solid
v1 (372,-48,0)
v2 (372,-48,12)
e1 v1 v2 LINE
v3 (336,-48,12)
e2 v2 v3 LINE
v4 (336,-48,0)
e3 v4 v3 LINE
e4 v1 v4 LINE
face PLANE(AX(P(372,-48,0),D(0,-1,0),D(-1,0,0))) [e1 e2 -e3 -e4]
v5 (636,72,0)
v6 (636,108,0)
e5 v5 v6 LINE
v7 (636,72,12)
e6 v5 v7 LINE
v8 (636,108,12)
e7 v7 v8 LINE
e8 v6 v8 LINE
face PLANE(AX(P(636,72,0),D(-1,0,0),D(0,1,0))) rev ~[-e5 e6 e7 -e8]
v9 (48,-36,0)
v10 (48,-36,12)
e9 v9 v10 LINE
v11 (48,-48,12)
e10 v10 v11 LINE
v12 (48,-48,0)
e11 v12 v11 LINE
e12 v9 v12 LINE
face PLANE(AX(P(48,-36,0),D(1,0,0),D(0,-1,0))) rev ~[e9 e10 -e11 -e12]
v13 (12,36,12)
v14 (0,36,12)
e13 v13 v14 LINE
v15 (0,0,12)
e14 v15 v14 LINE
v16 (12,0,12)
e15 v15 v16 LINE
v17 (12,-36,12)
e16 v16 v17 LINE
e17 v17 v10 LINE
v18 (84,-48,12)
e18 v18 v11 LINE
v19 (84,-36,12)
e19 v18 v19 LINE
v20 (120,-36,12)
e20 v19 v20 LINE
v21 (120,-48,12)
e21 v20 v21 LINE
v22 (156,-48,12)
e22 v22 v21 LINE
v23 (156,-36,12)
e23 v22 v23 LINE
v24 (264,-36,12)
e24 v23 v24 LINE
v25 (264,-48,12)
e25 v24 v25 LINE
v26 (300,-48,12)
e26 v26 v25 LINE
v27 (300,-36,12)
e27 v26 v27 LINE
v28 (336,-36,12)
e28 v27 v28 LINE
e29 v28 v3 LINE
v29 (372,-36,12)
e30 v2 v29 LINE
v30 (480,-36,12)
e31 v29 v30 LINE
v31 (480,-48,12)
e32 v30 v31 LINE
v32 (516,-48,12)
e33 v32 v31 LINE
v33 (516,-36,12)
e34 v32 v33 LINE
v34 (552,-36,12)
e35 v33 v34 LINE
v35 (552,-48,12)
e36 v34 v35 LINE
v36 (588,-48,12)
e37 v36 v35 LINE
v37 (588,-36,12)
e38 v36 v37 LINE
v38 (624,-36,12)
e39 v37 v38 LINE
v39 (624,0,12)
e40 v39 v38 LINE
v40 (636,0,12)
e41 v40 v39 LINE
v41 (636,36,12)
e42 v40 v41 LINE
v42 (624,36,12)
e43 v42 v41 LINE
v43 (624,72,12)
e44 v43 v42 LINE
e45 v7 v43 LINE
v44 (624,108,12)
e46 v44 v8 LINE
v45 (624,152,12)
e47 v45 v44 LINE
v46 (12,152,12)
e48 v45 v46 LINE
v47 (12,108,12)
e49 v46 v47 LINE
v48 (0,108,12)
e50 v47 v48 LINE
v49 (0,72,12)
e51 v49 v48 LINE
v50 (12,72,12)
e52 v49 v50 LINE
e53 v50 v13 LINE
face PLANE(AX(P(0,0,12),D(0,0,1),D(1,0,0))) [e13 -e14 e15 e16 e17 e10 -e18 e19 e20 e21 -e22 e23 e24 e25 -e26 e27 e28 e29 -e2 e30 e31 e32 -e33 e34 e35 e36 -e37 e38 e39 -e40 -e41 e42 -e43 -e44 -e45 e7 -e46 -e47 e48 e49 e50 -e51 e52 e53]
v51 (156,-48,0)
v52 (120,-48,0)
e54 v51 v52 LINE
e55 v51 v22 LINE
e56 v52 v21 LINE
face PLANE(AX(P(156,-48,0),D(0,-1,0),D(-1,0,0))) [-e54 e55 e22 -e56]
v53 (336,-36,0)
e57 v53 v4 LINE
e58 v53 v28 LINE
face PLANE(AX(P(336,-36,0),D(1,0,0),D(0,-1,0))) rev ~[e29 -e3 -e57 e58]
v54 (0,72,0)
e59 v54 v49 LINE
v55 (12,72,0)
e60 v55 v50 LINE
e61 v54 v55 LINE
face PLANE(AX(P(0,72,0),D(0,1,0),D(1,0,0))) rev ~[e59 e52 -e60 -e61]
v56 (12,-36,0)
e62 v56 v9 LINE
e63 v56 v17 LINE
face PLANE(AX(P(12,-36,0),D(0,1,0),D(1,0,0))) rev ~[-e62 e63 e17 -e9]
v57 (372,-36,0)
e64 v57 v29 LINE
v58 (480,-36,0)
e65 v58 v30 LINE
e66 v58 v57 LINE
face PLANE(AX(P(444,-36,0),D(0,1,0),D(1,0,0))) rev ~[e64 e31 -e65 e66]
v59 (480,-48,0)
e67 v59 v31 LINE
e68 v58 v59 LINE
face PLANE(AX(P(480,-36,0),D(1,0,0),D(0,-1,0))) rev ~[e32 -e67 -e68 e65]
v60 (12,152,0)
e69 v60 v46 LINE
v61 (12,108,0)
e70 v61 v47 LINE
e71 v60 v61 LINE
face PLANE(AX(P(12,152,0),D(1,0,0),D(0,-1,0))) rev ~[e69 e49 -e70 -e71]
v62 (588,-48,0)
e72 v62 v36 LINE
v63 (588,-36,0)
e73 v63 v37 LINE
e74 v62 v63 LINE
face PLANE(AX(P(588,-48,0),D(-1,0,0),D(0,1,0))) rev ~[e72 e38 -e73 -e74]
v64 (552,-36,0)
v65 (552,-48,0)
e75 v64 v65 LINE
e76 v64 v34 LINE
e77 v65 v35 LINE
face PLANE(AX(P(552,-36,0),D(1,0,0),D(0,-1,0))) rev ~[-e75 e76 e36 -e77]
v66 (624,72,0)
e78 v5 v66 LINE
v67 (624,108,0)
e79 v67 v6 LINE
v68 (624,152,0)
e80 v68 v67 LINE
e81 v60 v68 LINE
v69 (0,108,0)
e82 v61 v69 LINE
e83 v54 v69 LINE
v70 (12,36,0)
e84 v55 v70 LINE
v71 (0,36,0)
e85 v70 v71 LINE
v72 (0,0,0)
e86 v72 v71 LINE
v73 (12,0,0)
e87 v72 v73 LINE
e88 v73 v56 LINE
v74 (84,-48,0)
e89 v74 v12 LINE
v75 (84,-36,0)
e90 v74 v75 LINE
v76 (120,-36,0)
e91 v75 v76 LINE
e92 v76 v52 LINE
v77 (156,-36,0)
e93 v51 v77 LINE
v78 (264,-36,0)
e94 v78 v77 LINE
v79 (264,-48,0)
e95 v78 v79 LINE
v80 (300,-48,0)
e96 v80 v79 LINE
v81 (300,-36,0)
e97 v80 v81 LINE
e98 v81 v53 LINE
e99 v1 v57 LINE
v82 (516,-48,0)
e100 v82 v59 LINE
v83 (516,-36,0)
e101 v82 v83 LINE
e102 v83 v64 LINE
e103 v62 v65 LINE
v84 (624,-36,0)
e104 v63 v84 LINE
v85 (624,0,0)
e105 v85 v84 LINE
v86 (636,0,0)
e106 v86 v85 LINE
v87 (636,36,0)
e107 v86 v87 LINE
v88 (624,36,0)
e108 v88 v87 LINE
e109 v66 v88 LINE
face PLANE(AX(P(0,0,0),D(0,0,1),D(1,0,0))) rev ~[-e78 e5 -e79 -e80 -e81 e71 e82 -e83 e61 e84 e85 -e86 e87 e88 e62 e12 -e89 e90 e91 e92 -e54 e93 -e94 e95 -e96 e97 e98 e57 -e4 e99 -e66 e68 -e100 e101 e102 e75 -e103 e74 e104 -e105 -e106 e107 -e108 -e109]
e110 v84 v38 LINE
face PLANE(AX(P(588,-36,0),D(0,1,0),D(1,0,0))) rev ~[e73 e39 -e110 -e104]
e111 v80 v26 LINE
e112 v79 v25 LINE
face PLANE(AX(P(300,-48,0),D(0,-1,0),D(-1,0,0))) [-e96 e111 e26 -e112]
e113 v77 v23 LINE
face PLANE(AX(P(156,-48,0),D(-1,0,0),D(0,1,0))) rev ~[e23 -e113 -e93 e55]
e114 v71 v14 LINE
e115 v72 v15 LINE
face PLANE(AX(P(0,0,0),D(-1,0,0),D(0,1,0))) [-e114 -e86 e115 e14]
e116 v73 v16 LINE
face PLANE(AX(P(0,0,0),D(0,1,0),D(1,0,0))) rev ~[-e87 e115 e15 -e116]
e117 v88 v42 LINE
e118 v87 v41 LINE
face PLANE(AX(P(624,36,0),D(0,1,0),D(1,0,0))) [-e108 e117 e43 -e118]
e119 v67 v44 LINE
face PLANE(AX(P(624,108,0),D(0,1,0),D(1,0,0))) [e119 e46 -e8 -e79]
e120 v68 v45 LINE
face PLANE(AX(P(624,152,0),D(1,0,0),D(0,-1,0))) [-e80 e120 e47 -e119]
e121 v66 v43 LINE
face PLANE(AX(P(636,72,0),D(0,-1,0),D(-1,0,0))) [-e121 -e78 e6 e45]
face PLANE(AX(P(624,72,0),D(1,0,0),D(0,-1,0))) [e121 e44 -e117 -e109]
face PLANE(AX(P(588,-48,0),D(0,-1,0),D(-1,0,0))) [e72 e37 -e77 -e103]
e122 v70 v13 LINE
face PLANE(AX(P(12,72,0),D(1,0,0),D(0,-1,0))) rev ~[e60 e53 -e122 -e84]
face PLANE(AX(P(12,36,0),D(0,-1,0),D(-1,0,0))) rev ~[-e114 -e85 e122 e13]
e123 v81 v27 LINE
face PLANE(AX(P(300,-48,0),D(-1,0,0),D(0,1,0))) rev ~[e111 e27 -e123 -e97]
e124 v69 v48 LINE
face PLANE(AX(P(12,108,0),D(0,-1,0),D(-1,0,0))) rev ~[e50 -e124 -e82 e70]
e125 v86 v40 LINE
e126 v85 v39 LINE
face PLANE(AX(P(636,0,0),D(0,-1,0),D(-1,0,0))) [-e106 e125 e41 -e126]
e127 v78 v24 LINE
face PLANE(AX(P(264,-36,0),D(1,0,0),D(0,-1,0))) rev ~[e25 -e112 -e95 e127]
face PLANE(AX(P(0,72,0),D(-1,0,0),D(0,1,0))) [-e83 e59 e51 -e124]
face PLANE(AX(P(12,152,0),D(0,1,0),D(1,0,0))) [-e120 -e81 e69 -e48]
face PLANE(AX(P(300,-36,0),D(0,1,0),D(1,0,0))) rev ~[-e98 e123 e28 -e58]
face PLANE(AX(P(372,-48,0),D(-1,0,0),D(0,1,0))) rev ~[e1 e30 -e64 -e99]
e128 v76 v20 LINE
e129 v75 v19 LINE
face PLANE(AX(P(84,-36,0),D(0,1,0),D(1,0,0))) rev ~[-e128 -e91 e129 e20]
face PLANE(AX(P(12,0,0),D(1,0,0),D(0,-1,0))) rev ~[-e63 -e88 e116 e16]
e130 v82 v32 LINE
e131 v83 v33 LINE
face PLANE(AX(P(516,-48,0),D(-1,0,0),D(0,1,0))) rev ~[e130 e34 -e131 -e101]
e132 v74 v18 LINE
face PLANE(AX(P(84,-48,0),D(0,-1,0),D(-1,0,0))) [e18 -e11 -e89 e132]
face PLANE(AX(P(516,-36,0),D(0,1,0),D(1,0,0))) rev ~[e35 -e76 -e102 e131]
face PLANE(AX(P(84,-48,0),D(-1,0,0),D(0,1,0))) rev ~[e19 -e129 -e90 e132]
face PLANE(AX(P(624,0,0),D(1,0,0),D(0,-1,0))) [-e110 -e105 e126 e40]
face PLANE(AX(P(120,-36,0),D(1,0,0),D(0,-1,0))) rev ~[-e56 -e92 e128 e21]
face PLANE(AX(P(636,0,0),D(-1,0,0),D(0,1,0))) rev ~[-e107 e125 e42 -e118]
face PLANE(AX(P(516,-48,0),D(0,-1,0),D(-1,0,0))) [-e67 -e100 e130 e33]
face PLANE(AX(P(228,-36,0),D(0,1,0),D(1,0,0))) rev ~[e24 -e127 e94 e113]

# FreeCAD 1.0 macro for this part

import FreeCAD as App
import Part
import Sketcher
from FreeCAD import Vector
Q = App.Units.Quantity


def add_polygon(sketch, points):
    """Adds a closed chain of lines whose ends are joined by coincident constraints."""
    first, n = sketch.GeometryCount, len(points)
    for a, b in zip(points, points[1:] + points[:1]):
        sketch.addGeometry(Part.LineSegment(App.Vector(*a, 0), App.Vector(*b, 0)), False)
    for i in range(n):
        sketch.addConstraint(Sketcher.Constraint("Coincident", first + i, 2, first + (i + 1) % n, 1))

doc = App.newDocument("Part")
body = doc.addObject("PartDesign::Body", "Body")

# Sketch on XY plane
sketch1 = body.newObject("Sketcher::SketchObject", "Sketch")
sketch1.AttachmentSupport = (doc.getObject("XY_Plane"), [""])
sketch1.MapMode = "FlatFace"
add_polygon(sketch1, [(0, 108), (0, 72), (12, 72), (12, 36), (0, 36), (0, 0), (12, 0), (12, -36), (48, -36), (48, -48), (84, -48), (84, -36), (120, -36), (120, -48), (156, -48), (156, -36), (264, -36), (264, -48), (300, -48), (300, -36), (336, -36), (336, -48), (372, -48), (372, -36), (480, -36), (480, -48), (516, -48), (516, -36), (552, -36), (552, -48), (588, -48), (588, -36), (624, -36), (624, 0), (636, 0), (636, 36), (624, 36), (624, 72), (636, 72), (636, 108), (624, 108), (624, 152), (12, 152), (12, 108)])  # lines 0-43
sketch1.addConstraint([
    Sketcher.Constraint("Vertical", 0),
    Sketcher.Constraint("Horizontal", 1),
    Sketcher.Constraint("Vertical", 2),
    Sketcher.Constraint("Horizontal", 3),
    Sketcher.Constraint("Vertical", 4),
    Sketcher.Constraint("Horizontal", 5),
    Sketcher.Constraint("Vertical", 6),
    Sketcher.Constraint("Horizontal", 7),
    Sketcher.Constraint("Vertical", 8),
    Sketcher.Constraint("Horizontal", 9),
    Sketcher.Constraint("Vertical", 10),
    Sketcher.Constraint("Horizontal", 11),
    Sketcher.Constraint("Vertical", 12),
    Sketcher.Constraint("Horizontal", 13),
    Sketcher.Constraint("Vertical", 14),
    Sketcher.Constraint("Horizontal", 15),
    Sketcher.Constraint("Vertical", 16),
    Sketcher.Constraint("Horizontal", 17),
    Sketcher.Constraint("Vertical", 18),
    Sketcher.Constraint("Horizontal", 19),
    Sketcher.Constraint("Vertical", 20),
    Sketcher.Constraint("Horizontal", 21),
    Sketcher.Constraint("Vertical", 22),
    Sketcher.Constraint("Horizontal", 23),
    Sketcher.Constraint("Vertical", 24),
    Sketcher.Constraint("Horizontal", 25),
    Sketcher.Constraint("Vertical", 26),
    Sketcher.Constraint("Horizontal", 27),
    Sketcher.Constraint("Vertical", 28),
    Sketcher.Constraint("Horizontal", 29),
    Sketcher.Constraint("Vertical", 30),
    Sketcher.Constraint("Horizontal", 31),
    Sketcher.Constraint("Vertical", 32),
    Sketcher.Constraint("Horizontal", 33),
    Sketcher.Constraint("Vertical", 34),
    Sketcher.Constraint("Horizontal", 35),
    Sketcher.Constraint("Vertical", 36),
    Sketcher.Constraint("Horizontal", 37),
    Sketcher.Constraint("Vertical", 38),
    Sketcher.Constraint("Horizontal", 39),
    Sketcher.Constraint("Vertical", 40),
    Sketcher.Constraint("Horizontal", 41),
    Sketcher.Constraint("Vertical", 42),
    Sketcher.Constraint("Horizontal", 43),
    Sketcher.Constraint("Coincident", 4, 2, -1, 1),
    Sketcher.Constraint("Symmetric", 2, 2, 6, 2, -1),
    Sketcher.Constraint("Symmetric", 31, 2, 35, 2, -1),
    Sketcher.Constraint("PointOnObject", 0, 2, -2),
    Sketcher.Constraint("PointOnObject", 32, 2, -1),
    Sketcher.Constraint("Horizontal", 7, 2, 10, 2),
    Sketcher.Constraint("Horizontal", 9, 2, 12, 2),
    Sketcher.Constraint("Horizontal", 11, 2, 14, 2),
    Sketcher.Constraint("Horizontal", 13, 2, 16, 2),
    Sketcher.Constraint("Horizontal", 15, 2, 18, 2),
    Sketcher.Constraint("Horizontal", 17, 2, 20, 2),
    Sketcher.Constraint("Horizontal", 19, 2, 22, 2),
    Sketcher.Constraint("Horizontal", 21, 2, 24, 2),
    Sketcher.Constraint("Horizontal", 23, 2, 26, 2),
    Sketcher.Constraint("Horizontal", 25, 2, 28, 2),
    Sketcher.Constraint("Horizontal", 27, 2, 30, 2),
    Sketcher.Constraint("Horizontal", 1, 2, 36, 2),
    Sketcher.Constraint("Horizontal", 39, 2, 42, 2),
    Sketcher.Constraint("Vertical", 34, 2, 37, 2),
    Sketcher.Constraint("Vertical", 36, 2, 39, 2),
    Sketcher.Constraint("Vertical", 6, 2, 41, 2),
    Sketcher.Constraint("Equal", 7, 9),
    Sketcher.Constraint("Equal", 9, 11),
    Sketcher.Constraint("Equal", 11, 13),
    Sketcher.Constraint("Equal", 13, 17),
    Sketcher.Constraint("Equal", 17, 19),
    Sketcher.Constraint("Equal", 19, 21),
    Sketcher.Constraint("Equal", 15, 23),
    Sketcher.Constraint("Equal", 21, 25),
    Sketcher.Constraint("Equal", 25, 27),
    Sketcher.Constraint("Equal", 27, 29),
    Sketcher.Constraint("Equal", 29, 31),
    Sketcher.Constraint("Equal", 5, 33),
    Sketcher.Constraint("Equal", 31, 0),
    Sketcher.Constraint("Equal", 0, 2),
    Sketcher.Constraint("Equal", 2, 4),
    Sketcher.Constraint("Equal", 43, 8),
    Sketcher.Constraint("DistanceX", 1, 1, 1, 2, Q("12 mm")),
    Sketcher.Constraint("DistanceX", 7, 1, 7, 2, Q("36 mm")),
    Sketcher.Constraint("DistanceX", 15, 1, 15, 2, Q("108 mm")),
    Sketcher.Constraint("DistanceY", 40, 1, 40, 2, Q("44 mm")),
])
pad1 = body.newObject("PartDesign::Pad", "Pad")
pad1.Profile = sketch1
pad1.Length = 12

doc.recompute()
